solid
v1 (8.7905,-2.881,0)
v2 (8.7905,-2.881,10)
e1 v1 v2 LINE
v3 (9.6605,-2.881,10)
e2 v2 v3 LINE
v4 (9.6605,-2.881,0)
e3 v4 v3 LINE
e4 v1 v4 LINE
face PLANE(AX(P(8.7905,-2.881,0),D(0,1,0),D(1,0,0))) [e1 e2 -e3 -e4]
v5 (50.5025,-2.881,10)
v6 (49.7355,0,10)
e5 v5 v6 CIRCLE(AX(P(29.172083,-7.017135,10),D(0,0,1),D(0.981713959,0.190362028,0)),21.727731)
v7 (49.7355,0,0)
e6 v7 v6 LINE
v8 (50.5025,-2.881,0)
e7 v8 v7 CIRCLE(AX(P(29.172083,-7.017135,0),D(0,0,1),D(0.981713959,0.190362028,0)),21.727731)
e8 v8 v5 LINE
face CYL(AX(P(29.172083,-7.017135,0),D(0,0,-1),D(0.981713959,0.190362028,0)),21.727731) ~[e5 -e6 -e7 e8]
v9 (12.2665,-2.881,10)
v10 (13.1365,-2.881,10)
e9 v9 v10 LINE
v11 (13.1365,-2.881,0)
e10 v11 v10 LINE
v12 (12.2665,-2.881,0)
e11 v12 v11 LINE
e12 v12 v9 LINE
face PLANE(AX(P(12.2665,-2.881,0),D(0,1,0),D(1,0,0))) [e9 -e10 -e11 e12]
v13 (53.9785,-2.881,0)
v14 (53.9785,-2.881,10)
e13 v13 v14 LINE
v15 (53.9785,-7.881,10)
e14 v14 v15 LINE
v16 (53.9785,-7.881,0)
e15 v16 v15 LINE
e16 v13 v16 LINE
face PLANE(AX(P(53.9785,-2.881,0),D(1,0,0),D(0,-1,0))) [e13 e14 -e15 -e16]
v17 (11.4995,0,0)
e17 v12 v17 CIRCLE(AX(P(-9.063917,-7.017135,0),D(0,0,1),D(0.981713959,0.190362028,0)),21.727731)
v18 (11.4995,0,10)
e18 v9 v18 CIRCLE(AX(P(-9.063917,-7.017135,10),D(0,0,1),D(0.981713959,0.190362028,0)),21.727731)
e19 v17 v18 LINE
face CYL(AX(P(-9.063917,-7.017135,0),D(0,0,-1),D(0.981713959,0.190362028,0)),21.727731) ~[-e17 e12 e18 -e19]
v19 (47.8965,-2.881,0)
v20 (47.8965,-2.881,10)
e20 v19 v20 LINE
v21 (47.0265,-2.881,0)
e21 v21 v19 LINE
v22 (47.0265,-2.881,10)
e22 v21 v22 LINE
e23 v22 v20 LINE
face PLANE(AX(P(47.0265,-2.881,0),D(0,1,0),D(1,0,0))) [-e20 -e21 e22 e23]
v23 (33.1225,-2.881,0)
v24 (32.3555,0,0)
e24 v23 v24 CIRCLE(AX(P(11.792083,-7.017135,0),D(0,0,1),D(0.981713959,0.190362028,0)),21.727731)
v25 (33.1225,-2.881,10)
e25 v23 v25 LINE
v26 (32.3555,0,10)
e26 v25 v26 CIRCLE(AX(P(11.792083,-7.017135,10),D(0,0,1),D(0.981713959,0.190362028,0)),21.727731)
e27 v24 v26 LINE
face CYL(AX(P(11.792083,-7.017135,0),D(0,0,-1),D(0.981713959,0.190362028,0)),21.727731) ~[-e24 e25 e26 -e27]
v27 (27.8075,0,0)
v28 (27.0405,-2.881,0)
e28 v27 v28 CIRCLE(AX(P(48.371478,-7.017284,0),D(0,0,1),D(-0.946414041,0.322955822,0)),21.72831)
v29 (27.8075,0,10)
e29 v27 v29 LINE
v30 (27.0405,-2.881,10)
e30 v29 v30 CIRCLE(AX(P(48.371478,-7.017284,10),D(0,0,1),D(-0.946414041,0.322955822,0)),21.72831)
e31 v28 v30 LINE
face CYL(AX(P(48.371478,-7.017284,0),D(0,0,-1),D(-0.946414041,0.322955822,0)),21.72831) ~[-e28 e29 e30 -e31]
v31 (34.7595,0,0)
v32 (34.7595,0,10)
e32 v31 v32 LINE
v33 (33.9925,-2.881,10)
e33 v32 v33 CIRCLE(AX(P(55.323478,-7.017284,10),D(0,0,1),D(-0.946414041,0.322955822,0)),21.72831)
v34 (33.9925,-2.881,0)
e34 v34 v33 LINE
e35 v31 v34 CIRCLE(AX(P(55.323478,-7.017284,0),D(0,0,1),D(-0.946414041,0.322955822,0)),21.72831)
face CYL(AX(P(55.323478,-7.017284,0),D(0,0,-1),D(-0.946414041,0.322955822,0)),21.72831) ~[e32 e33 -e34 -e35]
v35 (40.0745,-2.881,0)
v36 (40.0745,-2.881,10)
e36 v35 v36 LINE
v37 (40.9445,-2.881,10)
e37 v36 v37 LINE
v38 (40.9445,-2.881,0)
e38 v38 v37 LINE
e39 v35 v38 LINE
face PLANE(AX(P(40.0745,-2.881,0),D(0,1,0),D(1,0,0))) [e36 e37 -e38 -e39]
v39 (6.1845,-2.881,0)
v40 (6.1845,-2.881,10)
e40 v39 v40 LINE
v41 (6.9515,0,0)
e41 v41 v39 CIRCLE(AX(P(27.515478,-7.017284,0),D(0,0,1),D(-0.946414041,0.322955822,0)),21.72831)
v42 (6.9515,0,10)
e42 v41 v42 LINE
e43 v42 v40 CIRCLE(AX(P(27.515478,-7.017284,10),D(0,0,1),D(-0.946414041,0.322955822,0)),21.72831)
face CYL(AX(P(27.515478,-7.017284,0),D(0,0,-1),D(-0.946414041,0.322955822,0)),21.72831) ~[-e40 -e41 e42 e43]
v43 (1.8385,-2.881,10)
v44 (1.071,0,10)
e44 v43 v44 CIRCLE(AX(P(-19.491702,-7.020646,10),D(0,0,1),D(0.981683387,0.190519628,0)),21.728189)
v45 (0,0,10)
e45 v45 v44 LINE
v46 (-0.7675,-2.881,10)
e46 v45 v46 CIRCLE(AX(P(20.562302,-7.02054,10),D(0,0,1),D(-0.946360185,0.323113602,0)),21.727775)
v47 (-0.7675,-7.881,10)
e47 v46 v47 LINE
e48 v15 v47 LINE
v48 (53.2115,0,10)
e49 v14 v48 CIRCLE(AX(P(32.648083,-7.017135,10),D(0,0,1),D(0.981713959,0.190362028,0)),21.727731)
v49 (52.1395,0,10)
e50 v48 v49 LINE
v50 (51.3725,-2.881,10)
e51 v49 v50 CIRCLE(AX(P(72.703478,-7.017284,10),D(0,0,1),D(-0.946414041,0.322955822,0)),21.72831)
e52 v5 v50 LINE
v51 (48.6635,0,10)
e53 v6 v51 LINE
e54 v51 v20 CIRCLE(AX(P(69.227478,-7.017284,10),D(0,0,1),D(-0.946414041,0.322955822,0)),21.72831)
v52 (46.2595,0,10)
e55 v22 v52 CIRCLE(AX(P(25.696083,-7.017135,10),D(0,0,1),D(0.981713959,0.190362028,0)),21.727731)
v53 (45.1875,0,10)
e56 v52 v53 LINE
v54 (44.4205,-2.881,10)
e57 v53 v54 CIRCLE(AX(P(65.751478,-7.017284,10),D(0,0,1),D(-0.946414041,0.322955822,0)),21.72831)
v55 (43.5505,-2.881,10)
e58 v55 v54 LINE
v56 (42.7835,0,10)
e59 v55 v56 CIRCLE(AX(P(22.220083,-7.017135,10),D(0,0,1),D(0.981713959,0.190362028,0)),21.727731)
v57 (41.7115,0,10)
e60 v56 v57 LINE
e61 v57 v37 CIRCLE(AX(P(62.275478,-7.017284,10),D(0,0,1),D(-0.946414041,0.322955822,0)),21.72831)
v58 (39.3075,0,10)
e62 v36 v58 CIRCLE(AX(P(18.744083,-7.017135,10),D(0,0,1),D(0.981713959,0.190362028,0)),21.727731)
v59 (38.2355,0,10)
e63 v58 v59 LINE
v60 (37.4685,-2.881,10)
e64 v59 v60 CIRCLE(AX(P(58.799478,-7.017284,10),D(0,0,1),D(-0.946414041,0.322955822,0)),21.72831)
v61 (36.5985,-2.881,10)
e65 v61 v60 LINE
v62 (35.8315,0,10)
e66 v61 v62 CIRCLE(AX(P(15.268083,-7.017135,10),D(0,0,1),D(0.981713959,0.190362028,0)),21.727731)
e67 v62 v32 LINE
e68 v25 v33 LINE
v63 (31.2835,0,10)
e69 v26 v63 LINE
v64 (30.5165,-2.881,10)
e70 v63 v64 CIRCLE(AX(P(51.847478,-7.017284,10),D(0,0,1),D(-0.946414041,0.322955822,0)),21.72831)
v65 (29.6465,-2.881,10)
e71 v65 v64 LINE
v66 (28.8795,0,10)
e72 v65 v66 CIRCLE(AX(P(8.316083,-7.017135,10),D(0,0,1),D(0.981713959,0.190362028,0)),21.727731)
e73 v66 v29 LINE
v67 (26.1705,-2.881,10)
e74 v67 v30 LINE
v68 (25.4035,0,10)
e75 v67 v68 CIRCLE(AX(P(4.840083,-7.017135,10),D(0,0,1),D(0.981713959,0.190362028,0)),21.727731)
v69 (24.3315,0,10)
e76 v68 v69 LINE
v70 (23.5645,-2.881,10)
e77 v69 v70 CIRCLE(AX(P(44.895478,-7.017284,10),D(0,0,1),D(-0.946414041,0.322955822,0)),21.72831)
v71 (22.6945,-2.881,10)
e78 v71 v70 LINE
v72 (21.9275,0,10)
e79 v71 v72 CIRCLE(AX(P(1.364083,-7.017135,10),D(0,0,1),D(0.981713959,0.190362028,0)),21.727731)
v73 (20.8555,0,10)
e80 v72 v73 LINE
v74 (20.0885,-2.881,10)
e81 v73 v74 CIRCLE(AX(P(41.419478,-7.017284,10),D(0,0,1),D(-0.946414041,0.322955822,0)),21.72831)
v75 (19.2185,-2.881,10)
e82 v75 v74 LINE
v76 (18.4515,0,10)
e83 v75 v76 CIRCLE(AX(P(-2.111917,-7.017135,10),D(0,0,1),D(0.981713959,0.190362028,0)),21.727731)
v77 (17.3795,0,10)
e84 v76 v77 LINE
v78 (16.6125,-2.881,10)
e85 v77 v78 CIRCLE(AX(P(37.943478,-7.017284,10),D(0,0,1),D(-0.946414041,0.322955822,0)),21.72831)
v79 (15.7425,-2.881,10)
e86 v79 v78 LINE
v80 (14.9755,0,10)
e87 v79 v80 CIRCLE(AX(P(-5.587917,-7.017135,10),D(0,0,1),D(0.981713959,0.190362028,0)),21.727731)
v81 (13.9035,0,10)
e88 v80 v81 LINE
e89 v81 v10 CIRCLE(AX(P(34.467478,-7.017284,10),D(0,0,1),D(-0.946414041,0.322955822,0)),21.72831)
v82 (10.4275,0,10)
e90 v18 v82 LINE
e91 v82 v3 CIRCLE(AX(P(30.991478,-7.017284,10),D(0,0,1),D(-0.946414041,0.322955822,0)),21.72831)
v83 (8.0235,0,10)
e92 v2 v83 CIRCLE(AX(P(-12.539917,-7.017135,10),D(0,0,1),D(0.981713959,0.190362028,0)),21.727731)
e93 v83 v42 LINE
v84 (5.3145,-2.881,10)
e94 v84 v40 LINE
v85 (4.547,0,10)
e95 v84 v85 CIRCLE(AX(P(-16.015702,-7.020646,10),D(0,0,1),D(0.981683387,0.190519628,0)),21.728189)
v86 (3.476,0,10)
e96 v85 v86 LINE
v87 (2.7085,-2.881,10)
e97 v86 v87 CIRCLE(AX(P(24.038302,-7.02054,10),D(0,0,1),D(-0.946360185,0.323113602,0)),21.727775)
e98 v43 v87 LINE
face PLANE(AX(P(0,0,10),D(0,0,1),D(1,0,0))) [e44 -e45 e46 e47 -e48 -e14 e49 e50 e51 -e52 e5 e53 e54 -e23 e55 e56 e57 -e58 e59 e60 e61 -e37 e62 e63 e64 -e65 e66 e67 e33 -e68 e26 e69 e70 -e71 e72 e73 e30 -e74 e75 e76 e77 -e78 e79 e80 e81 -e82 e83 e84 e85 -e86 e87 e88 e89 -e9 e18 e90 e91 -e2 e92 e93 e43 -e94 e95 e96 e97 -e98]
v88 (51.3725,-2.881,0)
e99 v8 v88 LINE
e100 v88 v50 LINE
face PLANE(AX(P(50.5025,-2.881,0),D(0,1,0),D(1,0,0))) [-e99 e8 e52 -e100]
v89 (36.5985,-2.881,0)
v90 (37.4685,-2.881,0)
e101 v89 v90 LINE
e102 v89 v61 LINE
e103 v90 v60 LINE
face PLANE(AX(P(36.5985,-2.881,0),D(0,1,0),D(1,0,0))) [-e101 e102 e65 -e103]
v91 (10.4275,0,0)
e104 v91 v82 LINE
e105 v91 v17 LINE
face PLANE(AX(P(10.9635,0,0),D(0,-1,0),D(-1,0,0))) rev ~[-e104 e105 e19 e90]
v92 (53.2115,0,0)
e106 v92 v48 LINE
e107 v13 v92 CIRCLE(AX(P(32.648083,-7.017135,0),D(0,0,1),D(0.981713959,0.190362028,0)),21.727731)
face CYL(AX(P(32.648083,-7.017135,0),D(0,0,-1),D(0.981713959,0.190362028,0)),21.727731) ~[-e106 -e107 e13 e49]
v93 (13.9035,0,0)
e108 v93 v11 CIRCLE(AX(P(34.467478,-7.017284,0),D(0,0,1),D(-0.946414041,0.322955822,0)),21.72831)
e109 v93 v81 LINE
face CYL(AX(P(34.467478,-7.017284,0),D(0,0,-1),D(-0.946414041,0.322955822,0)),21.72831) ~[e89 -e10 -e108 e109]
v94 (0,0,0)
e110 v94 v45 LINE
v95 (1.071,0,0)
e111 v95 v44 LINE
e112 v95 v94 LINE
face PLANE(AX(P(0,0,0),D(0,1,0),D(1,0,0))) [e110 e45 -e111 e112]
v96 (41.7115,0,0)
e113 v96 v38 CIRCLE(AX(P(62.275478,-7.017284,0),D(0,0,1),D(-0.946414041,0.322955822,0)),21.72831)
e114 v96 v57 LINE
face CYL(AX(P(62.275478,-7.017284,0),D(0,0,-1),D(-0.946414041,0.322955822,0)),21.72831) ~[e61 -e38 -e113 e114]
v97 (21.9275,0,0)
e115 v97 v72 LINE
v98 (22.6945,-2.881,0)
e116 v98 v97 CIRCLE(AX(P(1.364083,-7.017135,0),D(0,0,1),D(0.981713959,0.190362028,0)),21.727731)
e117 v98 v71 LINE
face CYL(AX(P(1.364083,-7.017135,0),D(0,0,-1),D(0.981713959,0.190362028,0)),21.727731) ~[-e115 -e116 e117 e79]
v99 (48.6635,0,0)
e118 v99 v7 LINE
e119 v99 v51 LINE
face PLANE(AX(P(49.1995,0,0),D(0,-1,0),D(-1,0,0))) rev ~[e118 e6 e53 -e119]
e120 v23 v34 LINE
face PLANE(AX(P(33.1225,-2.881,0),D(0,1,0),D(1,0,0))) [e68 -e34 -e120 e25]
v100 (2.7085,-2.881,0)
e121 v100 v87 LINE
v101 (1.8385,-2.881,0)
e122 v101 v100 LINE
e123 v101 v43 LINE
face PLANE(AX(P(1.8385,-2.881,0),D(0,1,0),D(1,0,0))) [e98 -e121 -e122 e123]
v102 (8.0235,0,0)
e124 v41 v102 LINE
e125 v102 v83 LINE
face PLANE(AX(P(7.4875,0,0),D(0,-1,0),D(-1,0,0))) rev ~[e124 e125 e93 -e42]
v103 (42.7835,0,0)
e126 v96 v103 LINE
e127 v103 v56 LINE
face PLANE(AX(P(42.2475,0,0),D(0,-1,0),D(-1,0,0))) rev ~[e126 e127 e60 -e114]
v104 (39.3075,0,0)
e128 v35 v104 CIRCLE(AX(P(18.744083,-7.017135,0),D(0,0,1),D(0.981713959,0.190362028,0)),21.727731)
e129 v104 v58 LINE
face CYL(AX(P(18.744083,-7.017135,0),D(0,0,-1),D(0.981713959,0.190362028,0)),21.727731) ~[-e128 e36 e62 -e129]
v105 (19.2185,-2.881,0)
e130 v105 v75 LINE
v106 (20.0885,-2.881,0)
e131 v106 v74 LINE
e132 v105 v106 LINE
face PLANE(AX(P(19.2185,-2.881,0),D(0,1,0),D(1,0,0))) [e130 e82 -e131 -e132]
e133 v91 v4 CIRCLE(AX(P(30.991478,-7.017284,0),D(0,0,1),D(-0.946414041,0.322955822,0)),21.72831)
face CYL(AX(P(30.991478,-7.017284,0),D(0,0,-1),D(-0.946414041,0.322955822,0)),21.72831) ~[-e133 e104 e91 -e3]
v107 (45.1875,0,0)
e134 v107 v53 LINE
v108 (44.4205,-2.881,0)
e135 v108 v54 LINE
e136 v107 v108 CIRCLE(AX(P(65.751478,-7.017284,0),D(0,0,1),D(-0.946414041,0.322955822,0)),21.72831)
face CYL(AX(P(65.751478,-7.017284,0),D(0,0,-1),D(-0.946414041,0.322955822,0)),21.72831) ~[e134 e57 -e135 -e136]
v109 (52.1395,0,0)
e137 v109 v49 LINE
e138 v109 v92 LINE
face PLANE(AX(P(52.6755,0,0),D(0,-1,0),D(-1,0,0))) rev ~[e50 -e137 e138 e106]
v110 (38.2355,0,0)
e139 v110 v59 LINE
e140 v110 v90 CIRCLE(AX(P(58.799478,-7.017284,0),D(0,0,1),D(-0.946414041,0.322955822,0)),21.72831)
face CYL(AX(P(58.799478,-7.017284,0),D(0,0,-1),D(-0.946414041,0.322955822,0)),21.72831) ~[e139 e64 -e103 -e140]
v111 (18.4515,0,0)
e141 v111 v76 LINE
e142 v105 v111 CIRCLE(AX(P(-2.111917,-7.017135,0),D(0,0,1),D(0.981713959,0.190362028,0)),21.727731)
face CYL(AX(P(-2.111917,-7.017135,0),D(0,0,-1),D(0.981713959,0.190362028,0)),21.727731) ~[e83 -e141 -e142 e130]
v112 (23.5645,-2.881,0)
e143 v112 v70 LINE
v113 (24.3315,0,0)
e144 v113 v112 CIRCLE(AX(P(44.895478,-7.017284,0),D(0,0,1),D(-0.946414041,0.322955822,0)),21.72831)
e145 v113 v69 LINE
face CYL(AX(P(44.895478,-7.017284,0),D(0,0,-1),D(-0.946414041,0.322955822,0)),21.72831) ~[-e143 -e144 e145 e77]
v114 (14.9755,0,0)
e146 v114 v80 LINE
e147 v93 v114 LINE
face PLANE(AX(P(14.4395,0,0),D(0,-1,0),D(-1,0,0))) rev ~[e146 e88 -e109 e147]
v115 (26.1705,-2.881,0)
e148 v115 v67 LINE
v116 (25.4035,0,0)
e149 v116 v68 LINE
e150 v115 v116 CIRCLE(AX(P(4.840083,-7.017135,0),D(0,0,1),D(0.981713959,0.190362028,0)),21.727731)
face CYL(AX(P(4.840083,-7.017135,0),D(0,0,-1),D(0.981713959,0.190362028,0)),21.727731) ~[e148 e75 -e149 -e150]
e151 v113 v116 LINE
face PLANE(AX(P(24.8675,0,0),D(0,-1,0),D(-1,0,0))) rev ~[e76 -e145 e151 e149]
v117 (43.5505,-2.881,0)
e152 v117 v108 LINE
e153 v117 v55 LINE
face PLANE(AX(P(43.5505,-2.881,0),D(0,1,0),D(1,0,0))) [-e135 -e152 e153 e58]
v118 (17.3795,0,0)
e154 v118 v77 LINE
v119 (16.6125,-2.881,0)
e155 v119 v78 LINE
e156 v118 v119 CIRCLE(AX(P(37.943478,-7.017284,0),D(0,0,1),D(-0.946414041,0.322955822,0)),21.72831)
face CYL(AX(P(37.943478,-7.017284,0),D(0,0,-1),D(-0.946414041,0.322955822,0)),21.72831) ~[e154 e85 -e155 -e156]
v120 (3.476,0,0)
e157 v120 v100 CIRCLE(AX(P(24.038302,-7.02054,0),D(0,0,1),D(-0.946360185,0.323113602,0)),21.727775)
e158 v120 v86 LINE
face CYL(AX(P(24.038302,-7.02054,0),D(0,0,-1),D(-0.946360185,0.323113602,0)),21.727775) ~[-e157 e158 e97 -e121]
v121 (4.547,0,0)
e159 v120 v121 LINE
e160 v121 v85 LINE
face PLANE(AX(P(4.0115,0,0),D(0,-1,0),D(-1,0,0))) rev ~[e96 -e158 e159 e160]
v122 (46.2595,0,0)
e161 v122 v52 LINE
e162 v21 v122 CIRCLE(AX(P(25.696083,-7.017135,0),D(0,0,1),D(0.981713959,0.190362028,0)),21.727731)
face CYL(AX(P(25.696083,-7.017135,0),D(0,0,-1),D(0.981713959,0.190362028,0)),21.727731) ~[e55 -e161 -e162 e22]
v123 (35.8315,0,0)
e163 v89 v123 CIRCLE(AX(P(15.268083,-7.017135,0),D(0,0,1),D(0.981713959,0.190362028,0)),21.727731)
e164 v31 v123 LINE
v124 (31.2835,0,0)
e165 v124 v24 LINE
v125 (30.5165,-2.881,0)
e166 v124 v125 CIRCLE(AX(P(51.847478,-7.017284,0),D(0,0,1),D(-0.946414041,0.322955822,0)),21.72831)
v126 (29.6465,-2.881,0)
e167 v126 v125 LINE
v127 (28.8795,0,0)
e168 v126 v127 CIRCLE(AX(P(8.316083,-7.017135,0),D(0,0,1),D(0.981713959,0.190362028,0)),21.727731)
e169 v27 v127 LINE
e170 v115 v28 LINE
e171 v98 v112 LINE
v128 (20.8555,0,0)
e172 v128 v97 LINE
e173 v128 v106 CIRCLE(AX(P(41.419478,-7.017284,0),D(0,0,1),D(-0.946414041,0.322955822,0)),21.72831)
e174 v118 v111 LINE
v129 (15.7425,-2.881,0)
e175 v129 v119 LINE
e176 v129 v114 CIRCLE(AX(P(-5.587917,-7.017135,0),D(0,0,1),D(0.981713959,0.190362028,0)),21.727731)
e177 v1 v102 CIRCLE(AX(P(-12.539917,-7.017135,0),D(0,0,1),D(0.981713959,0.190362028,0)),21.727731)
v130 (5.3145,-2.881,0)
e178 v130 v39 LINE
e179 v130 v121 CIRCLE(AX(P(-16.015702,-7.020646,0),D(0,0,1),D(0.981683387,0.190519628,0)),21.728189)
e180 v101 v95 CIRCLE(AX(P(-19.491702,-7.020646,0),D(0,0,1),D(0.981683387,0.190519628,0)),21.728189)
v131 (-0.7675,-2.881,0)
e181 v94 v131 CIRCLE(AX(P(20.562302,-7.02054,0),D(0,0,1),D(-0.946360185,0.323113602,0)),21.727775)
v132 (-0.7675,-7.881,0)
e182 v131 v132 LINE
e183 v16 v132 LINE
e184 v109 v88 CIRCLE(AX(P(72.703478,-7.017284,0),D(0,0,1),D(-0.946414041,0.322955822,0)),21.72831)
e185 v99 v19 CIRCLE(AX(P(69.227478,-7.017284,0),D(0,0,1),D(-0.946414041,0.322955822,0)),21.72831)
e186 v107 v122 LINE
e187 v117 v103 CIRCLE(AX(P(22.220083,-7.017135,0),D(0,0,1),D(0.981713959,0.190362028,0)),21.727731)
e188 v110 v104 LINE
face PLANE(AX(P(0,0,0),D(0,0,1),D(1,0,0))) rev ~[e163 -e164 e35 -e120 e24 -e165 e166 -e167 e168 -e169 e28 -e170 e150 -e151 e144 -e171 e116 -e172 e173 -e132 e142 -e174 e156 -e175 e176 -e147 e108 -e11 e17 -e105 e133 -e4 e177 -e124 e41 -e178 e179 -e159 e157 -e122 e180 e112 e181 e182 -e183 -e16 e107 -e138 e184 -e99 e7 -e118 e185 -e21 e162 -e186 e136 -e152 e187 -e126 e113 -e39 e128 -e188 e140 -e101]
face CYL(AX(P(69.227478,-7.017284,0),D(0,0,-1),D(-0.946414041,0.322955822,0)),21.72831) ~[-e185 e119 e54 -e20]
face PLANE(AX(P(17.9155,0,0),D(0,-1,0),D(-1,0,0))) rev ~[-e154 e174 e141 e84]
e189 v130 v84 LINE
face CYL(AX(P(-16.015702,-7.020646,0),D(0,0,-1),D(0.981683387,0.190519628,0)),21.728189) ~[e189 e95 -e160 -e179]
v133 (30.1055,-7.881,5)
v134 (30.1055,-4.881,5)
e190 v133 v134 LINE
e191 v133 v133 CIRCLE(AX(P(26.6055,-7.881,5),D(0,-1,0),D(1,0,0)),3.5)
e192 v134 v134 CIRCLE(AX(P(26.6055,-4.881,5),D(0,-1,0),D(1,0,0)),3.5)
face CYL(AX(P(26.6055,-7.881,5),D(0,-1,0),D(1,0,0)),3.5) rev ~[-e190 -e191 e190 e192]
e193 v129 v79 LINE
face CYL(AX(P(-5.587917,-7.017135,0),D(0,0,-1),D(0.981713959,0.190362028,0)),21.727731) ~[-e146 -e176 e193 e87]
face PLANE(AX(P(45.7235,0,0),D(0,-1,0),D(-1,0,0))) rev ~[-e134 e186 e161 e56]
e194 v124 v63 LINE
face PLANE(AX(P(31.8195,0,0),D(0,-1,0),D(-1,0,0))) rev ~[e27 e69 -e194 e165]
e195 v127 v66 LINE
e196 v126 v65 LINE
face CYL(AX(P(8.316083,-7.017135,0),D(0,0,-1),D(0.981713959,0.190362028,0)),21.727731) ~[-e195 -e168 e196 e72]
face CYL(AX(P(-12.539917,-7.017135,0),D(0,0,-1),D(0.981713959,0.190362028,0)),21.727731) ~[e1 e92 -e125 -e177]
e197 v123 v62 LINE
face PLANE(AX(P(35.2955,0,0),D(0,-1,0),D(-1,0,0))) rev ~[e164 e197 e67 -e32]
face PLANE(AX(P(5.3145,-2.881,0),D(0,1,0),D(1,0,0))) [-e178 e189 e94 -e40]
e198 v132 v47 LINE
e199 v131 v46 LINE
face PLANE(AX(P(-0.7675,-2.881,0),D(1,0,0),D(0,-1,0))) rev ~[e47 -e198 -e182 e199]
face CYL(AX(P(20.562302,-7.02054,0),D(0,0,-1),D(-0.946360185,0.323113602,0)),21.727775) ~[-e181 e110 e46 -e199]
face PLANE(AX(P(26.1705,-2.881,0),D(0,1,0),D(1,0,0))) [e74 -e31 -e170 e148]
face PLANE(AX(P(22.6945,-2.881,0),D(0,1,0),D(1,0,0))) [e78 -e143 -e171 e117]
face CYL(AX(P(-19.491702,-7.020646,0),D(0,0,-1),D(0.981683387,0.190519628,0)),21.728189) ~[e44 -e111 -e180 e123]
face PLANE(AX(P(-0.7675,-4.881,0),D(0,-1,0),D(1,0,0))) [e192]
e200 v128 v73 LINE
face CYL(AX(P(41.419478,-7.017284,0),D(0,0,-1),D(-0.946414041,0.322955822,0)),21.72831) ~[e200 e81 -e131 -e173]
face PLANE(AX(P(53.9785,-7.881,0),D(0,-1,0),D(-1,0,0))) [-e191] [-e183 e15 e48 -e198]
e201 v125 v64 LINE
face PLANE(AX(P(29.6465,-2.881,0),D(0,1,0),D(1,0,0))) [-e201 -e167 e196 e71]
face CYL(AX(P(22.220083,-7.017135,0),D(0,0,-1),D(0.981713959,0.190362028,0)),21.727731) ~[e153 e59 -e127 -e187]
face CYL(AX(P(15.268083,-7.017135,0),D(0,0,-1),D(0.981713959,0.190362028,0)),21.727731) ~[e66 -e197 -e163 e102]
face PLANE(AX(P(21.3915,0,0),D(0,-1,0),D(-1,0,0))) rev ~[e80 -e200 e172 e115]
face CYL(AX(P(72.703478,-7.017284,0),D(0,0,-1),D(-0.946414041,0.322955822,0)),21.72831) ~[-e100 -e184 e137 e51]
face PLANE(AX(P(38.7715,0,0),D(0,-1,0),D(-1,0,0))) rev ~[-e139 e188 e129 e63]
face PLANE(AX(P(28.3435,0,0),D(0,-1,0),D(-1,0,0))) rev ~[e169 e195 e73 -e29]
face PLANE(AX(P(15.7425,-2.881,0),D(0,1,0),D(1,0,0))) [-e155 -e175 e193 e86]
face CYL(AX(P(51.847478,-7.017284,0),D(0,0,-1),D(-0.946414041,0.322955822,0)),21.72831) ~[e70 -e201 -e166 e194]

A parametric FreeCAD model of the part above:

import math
import FreeCAD as App
import Part
import Sketcher
from FreeCAD import Vector

doc = App.newDocument("Part")
body = doc.addObject("PartDesign::Body", "Body")

# Sketch on XY plane
sketch1 = body.newObject("Sketcher::SketchObject", "Sketch")
sketch1.AttachmentSupport = (doc.getObject("XY_Plane"), [""])
sketch1.MapMode = "FlatFace"
sketch1.addGeometry([
    Part.ArcOfCircle(Part.Circle(Vector(20.5625, -7.0206, 0), Vector(0, 0, 1), 21.727983), math.radians(161.148692), math.radians(169.016908)),  # 0
    Part.LineSegment(Vector(-0.7675, -2.881, 0), Vector(-0.7675, -7.881, 0)),  # 1
    Part.LineSegment(Vector(-0.7675, -7.881, 0), Vector(53.9785, -7.881, 0)),  # 2
    Part.LineSegment(Vector(53.9785, -7.881, 0), Vector(53.9785, -2.881, 0)),  # 3
    Part.ArcOfCircle(Part.Circle(Vector(32.6478, -7.0172, 0), Vector(0, 0, 1), 21.728021), math.radians(10.973939), math.radians(18.841801)),  # 4
    Part.LineSegment(Vector(53.2115, 0, 0), Vector(52.1395, 0, 0)),  # 5
    Part.ArcOfCircle(Part.Circle(Vector(72.7032, -7.0172, 0), Vector(0, 0, 1), 21.72802), math.radians(161.158199), math.radians(169.026061)),  # 6
    Part.LineSegment(Vector(51.3725, -2.881, 0), Vector(50.5025, -2.881, 0)),  # 7
    Part.ArcOfCircle(Part.Circle(Vector(29.1718, -7.0172, 0), Vector(0, 0, 1), 21.728021), math.radians(10.973939), math.radians(18.841801)),  # 8
    Part.LineSegment(Vector(49.7355, 0, 0), Vector(48.6635, 0, 0)),  # 9
    Part.ArcOfCircle(Part.Circle(Vector(69.2272, -7.0172, 0), Vector(0, 0, 1), 21.72802), math.radians(161.158199), math.radians(169.026061)),  # 10
    Part.LineSegment(Vector(47.8965, -2.881, 0), Vector(47.0265, -2.881, 0)),  # 11
    Part.ArcOfCircle(Part.Circle(Vector(25.6958, -7.0172, 0), Vector(0, 0, 1), 21.728021), math.radians(10.973939), math.radians(18.841801)),  # 12
    Part.LineSegment(Vector(46.2595, 0, 0), Vector(45.1875, 0, 0)),  # 13
    Part.ArcOfCircle(Part.Circle(Vector(65.7512, -7.0172, 0), Vector(0, 0, 1), 21.72802), math.radians(161.158199), math.radians(169.026061)),  # 14
    Part.LineSegment(Vector(44.4205, -2.881, 0), Vector(43.5505, -2.881, 0)),  # 15
    Part.ArcOfCircle(Part.Circle(Vector(22.2198, -7.0172, 0), Vector(0, 0, 1), 21.728021), math.radians(10.973939), math.radians(18.841801)),  # 16
    Part.LineSegment(Vector(42.7835, 0, 0), Vector(41.7115, 0, 0)),  # 17
    Part.ArcOfCircle(Part.Circle(Vector(62.2752, -7.0172, 0), Vector(0, 0, 1), 21.72802), math.radians(161.158199), math.radians(169.026061)),  # 18
    Part.LineSegment(Vector(40.9445, -2.881, 0), Vector(40.0745, -2.881, 0)),  # 19
    Part.ArcOfCircle(Part.Circle(Vector(18.7438, -7.0172, 0), Vector(0, 0, 1), 21.728021), math.radians(10.973939), math.radians(18.841801)),  # 20
    Part.LineSegment(Vector(39.3075, 0, 0), Vector(38.2355, 0, 0)),  # 21
    Part.ArcOfCircle(Part.Circle(Vector(58.7992, -7.0172, 0), Vector(0, 0, 1), 21.72802), math.radians(161.158199), math.radians(169.026061)),  # 22
    Part.LineSegment(Vector(37.4685, -2.881, 0), Vector(36.5985, -2.881, 0)),  # 23
    Part.ArcOfCircle(Part.Circle(Vector(15.2678, -7.0172, 0), Vector(0, 0, 1), 21.728021), math.radians(10.973939), math.radians(18.841801)),  # 24
    Part.LineSegment(Vector(35.8315, 0, 0), Vector(34.7595, 0, 0)),  # 25
    Part.ArcOfCircle(Part.Circle(Vector(55.3232, -7.0172, 0), Vector(0, 0, 1), 21.72802), math.radians(161.158199), math.radians(169.026061)),  # 26
    Part.LineSegment(Vector(33.9925, -2.881, 0), Vector(33.1225, -2.881, 0)),  # 27
    Part.ArcOfCircle(Part.Circle(Vector(11.7918, -7.0172, 0), Vector(0, 0, 1), 21.728021), math.radians(10.973939), math.radians(18.841801)),  # 28
    Part.LineSegment(Vector(32.3555, 0, 0), Vector(31.2835, 0, 0)),  # 29
    Part.ArcOfCircle(Part.Circle(Vector(51.8472, -7.0172, 0), Vector(0, 0, 1), 21.72802), math.radians(161.158199), math.radians(169.026061)),  # 30
    Part.LineSegment(Vector(30.5165, -2.881, 0), Vector(29.6465, -2.881, 0)),  # 31
    Part.ArcOfCircle(Part.Circle(Vector(8.3158, -7.0172, 0), Vector(0, 0, 1), 21.728021), math.radians(10.973939), math.radians(18.841801)),  # 32
    Part.LineSegment(Vector(28.8795, 0, 0), Vector(27.8075, 0, 0)),  # 33
    Part.ArcOfCircle(Part.Circle(Vector(48.3712, -7.0172, 0), Vector(0, 0, 1), 21.72802), math.radians(161.158199), math.radians(169.026061)),  # 34
    Part.LineSegment(Vector(27.0405, -2.881, 0), Vector(26.1705, -2.881, 0)),  # 35
    Part.ArcOfCircle(Part.Circle(Vector(4.8398, -7.0172, 0), Vector(0, 0, 1), 21.728021), math.radians(10.973939), math.radians(18.841801)),  # 36
    Part.LineSegment(Vector(25.4035, 0, 0), Vector(24.3315, 0, 0)),  # 37
    Part.ArcOfCircle(Part.Circle(Vector(44.8952, -7.0172, 0), Vector(0, 0, 1), 21.72802), math.radians(161.158199), math.radians(169.026061)),  # 38
    Part.LineSegment(Vector(23.5645, -2.881, 0), Vector(22.6945, -2.881, 0)),  # 39
    Part.ArcOfCircle(Part.Circle(Vector(1.3638, -7.0172, 0), Vector(0, 0, 1), 21.728021), math.radians(10.973939), math.radians(18.841801)),  # 40
    Part.LineSegment(Vector(21.9275, 0, 0), Vector(20.8555, 0, 0)),  # 41
    Part.ArcOfCircle(Part.Circle(Vector(41.4192, -7.0172, 0), Vector(0, 0, 1), 21.72802), math.radians(161.158199), math.radians(169.026061)),  # 42
    Part.LineSegment(Vector(20.0885, -2.881, 0), Vector(19.2185, -2.881, 0)),  # 43
    Part.ArcOfCircle(Part.Circle(Vector(-2.1122, -7.0172, 0), Vector(0, 0, 1), 21.728021), math.radians(10.973939), math.radians(18.841801)),  # 44
    Part.LineSegment(Vector(18.4515, 0, 0), Vector(17.3795, 0, 0)),  # 45
    Part.ArcOfCircle(Part.Circle(Vector(37.9432, -7.0172, 0), Vector(0, 0, 1), 21.72802), math.radians(161.158199), math.radians(169.026061)),  # 46
    Part.LineSegment(Vector(16.6125, -2.881, 0), Vector(15.7425, -2.881, 0)),  # 47
    Part.ArcOfCircle(Part.Circle(Vector(-5.5882, -7.0172, 0), Vector(0, 0, 1), 21.728021), math.radians(10.973939), math.radians(18.841801)),  # 48
    Part.LineSegment(Vector(14.9755, 0, 0), Vector(13.9035, 0, 0)),  # 49
    Part.ArcOfCircle(Part.Circle(Vector(34.4672, -7.0172, 0), Vector(0, 0, 1), 21.72802), math.radians(161.158199), math.radians(169.026061)),  # 50
    Part.LineSegment(Vector(13.1365, -2.881, 0), Vector(12.2665, -2.881, 0)),  # 51
    Part.ArcOfCircle(Part.Circle(Vector(-9.0642, -7.0172, 0), Vector(0, 0, 1), 21.728021), math.radians(10.973939), math.radians(18.841801)),  # 52
    Part.LineSegment(Vector(11.4995, 0, 0), Vector(10.4275, 0, 0)),  # 53
    Part.ArcOfCircle(Part.Circle(Vector(30.9912, -7.0172, 0), Vector(0, 0, 1), 21.72802), math.radians(161.158199), math.radians(169.026061)),  # 54
    Part.LineSegment(Vector(9.6605, -2.881, 0), Vector(8.7905, -2.881, 0)),  # 55
    Part.ArcOfCircle(Part.Circle(Vector(-12.5402, -7.0172, 0), Vector(0, 0, 1), 21.728021), math.radians(10.973939), math.radians(18.841801)),  # 56
    Part.LineSegment(Vector(8.0235, 0, 0), Vector(6.9515, 0, 0)),  # 57
    Part.ArcOfCircle(Part.Circle(Vector(27.5152, -7.0172, 0), Vector(0, 0, 1), 21.72802), math.radians(161.158199), math.radians(169.026061)),  # 58
    Part.LineSegment(Vector(6.1845, -2.881, 0), Vector(5.3145, -2.881, 0)),  # 59
    Part.ArcOfCircle(Part.Circle(Vector(-16.0155, -7.0206, 0), Vector(0, 0, 1), 21.727982), math.radians(10.983092), math.radians(18.851308)),  # 60
    Part.LineSegment(Vector(4.547, 0, 0), Vector(3.476, 0, 0)),  # 61
    Part.ArcOfCircle(Part.Circle(Vector(24.0385, -7.0206, 0), Vector(0, 0, 1), 21.727983), math.radians(161.148692), math.radians(169.016908)),  # 62
    Part.LineSegment(Vector(2.7085, -2.881, 0), Vector(1.8385, -2.881, 0)),  # 63
    Part.ArcOfCircle(Part.Circle(Vector(-19.4915, -7.0206, 0), Vector(0, 0, 1), 21.727982), math.radians(10.983092), math.radians(18.851308)),  # 64
    Part.LineSegment(Vector(1.071, 0, 0), Vector(0, 0, 0)),  # 65
], False)
sketch1.addConstraint([
    Sketcher.Constraint("Coincident", 0, 2, 1, 1),
    Sketcher.Constraint("Coincident", 1, 2, 2, 1),
    Sketcher.Constraint("Coincident", 2, 2, 3, 1),
    Sketcher.Constraint("Coincident", 3, 2, 4, 1),
    Sketcher.Constraint("Coincident", 4, 2, 5, 1),
    Sketcher.Constraint("Coincident", 5, 2, 6, 1),
    Sketcher.Constraint("Coincident", 6, 2, 7, 1),
    Sketcher.Constraint("Coincident", 7, 2, 8, 1),
    Sketcher.Constraint("Coincident", 8, 2, 9, 1),
    Sketcher.Constraint("Coincident", 9, 2, 10, 1),
    Sketcher.Constraint("Coincident", 10, 2, 11, 1),
    Sketcher.Constraint("Coincident", 11, 2, 12, 1),
    Sketcher.Constraint("Coincident", 12, 2, 13, 1),
    Sketcher.Constraint("Coincident", 13, 2, 14, 1),
    Sketcher.Constraint("Coincident", 14, 2, 15, 1),
    Sketcher.Constraint("Coincident", 15, 2, 16, 1),
    Sketcher.Constraint("Coincident", 16, 2, 17, 1),
    Sketcher.Constraint("Coincident", 17, 2, 18, 1),
    Sketcher.Constraint("Coincident", 18, 2, 19, 1),
    Sketcher.Constraint("Coincident", 19, 2, 20, 1),
    Sketcher.Constraint("Coincident", 20, 2, 21, 1),
    Sketcher.Constraint("Coincident", 21, 2, 22, 1),
    Sketcher.Constraint("Coincident", 22, 2, 23, 1),
    Sketcher.Constraint("Coincident", 23, 2, 24, 1),
    Sketcher.Constraint("Coincident", 24, 2, 25, 1),
    Sketcher.Constraint("Coincident", 25, 2, 26, 1),
    Sketcher.Constraint("Coincident", 26, 2, 27, 1),
    Sketcher.Constraint("Coincident", 27, 2, 28, 1),
    Sketcher.Constraint("Coincident", 28, 2, 29, 1),
    Sketcher.Constraint("Coincident", 29, 2, 30, 1),
    Sketcher.Constraint("Coincident", 30, 2, 31, 1),
    Sketcher.Constraint("Coincident", 31, 2, 32, 1),
    Sketcher.Constraint("Coincident", 32, 2, 33, 1),
    Sketcher.Constraint("Coincident", 33, 2, 34, 1),
    Sketcher.Constraint("Coincident", 34, 2, 35, 1),
    Sketcher.Constraint("Coincident", 35, 2, 36, 1),
    Sketcher.Constraint("Coincident", 36, 2, 37, 1),
    Sketcher.Constraint("Coincident", 37, 2, 38, 1),
    Sketcher.Constraint("Coincident", 38, 2, 39, 1),
    Sketcher.Constraint("Coincident", 39, 2, 40, 1),
    Sketcher.Constraint("Coincident", 40, 2, 41, 1),
    Sketcher.Constraint("Coincident", 41, 2, 42, 1),
    Sketcher.Constraint("Coincident", 42, 2, 43, 1),
    Sketcher.Constraint("Coincident", 43, 2, 44, 1),
    Sketcher.Constraint("Coincident", 44, 2, 45, 1),
    Sketcher.Constraint("Coincident", 45, 2, 46, 1),
    Sketcher.Constraint("Coincident", 46, 2, 47, 1),
    Sketcher.Constraint("Coincident", 47, 2, 48, 1),
    Sketcher.Constraint("Coincident", 48, 2, 49, 1),
    Sketcher.Constraint("Coincident", 49, 2, 50, 1),
    Sketcher.Constraint("Coincident", 50, 2, 51, 1),
    Sketcher.Constraint("Coincident", 51, 2, 52, 1),
    Sketcher.Constraint("Coincident", 52, 2, 53, 1),
    Sketcher.Constraint("Coincident", 53, 2, 54, 1),
    Sketcher.Constraint("Coincident", 54, 2, 55, 1),
    Sketcher.Constraint("Coincident", 55, 2, 56, 1),
    Sketcher.Constraint("Coincident", 56, 2, 57, 1),
    Sketcher.Constraint("Coincident", 57, 2, 58, 1),
    Sketcher.Constraint("Coincident", 58, 2, 59, 1),
    Sketcher.Constraint("Coincident", 59, 2, 60, 1),
    Sketcher.Constraint("Coincident", 60, 2, 61, 1),
    Sketcher.Constraint("Coincident", 61, 2, 62, 1),
    Sketcher.Constraint("Coincident", 62, 2, 63, 1),
    Sketcher.Constraint("Coincident", 63, 2, 64, 1),
    Sketcher.Constraint("Coincident", 64, 2, 65, 1),
    Sketcher.Constraint("Coincident", 65, 2, 0, 1),
    Sketcher.Constraint("Vertical", 1),
    Sketcher.Constraint("Horizontal", 2),
    Sketcher.Constraint("Vertical", 3),
    Sketcher.Constraint("Horizontal", 5),
    Sketcher.Constraint("Horizontal", 7),
    Sketcher.Constraint("Horizontal", 9),
    Sketcher.Constraint("Horizontal", 11),
    Sketcher.Constraint("Horizontal", 13),
    Sketcher.Constraint("Horizontal", 15),
    Sketcher.Constraint("Horizontal", 17),
    Sketcher.Constraint("Horizontal", 19),
    Sketcher.Constraint("Horizontal", 21),
    Sketcher.Constraint("Horizontal", 23),
    Sketcher.Constraint("Horizontal", 25),
    Sketcher.Constraint("Horizontal", 27),
    Sketcher.Constraint("Horizontal", 29),
    Sketcher.Constraint("Horizontal", 31),
    Sketcher.Constraint("Horizontal", 33),
    Sketcher.Constraint("Horizontal", 35),
    Sketcher.Constraint("Horizontal", 37),
    Sketcher.Constraint("Horizontal", 39),
    Sketcher.Constraint("Horizontal", 41),
    Sketcher.Constraint("Horizontal", 43),
    Sketcher.Constraint("Horizontal", 45),
    Sketcher.Constraint("Horizontal", 47),
    Sketcher.Constraint("Horizontal", 49),
    Sketcher.Constraint("Horizontal", 51),
    Sketcher.Constraint("Horizontal", 53),
    Sketcher.Constraint("Horizontal", 55),
    Sketcher.Constraint("Horizontal", 57),
    Sketcher.Constraint("Horizontal", 59),
    Sketcher.Constraint("Horizontal", 61),
    Sketcher.Constraint("Horizontal", 63),
    Sketcher.Constraint("Horizontal", 65),
    Sketcher.Constraint("Coincident", 65, 2, -1, 1),
    Sketcher.Constraint("Equal", 0, 4),
    Sketcher.Constraint("Equal", 4, 6),
    Sketcher.Constraint("Equal", 6, 8),
    Sketcher.Constraint("Equal", 8, 10),
    Sketcher.Constraint("Equal", 10, 12),
    Sketcher.Constraint("Equal", 12, 14),
    Sketcher.Constraint("Equal", 14, 16),
    Sketcher.Constraint("Equal", 16, 18),
    Sketcher.Constraint("Equal", 18, 20),
    Sketcher.Constraint("Equal", 20, 22),
    Sketcher.Constraint("Equal", 22, 24),
    Sketcher.Constraint("Equal", 24, 26),
    Sketcher.Constraint("Equal", 26, 28),
    Sketcher.Constraint("Equal", 28, 30),
    Sketcher.Constraint("Equal", 30, 32),
    Sketcher.Constraint("Equal", 32, 34),
    Sketcher.Constraint("Equal", 34, 36),
    Sketcher.Constraint("Equal", 36, 38),
    Sketcher.Constraint("Equal", 38, 40),
    Sketcher.Constraint("Equal", 40, 42),
    Sketcher.Constraint("Equal", 42, 44),
    Sketcher.Constraint("Equal", 44, 46),
    Sketcher.Constraint("Equal", 46, 48),
    Sketcher.Constraint("Equal", 48, 50),
    Sketcher.Constraint("Equal", 50, 52),
    Sketcher.Constraint("Equal", 52, 54),
    Sketcher.Constraint("Equal", 54, 56),
    Sketcher.Constraint("Equal", 56, 58),
    Sketcher.Constraint("Equal", 58, 60),
    Sketcher.Constraint("Equal", 60, 62),
    Sketcher.Constraint("Equal", 62, 64),
    Sketcher.Constraint("PointOnObject", 4, 2, -1),
    Sketcher.Constraint("PointOnObject", 8, 2, -1),
    Sketcher.Constraint("PointOnObject", 12, 2, -1),
    Sketcher.Constraint("PointOnObject", 16, 2, -1),
    Sketcher.Constraint("PointOnObject", 20, 2, -1),
    Sketcher.Constraint("PointOnObject", 24, 2, -1),
    Sketcher.Constraint("PointOnObject", 28, 2, -1),
    Sketcher.Constraint("PointOnObject", 32, 2, -1),
    Sketcher.Constraint("PointOnObject", 36, 2, -1),
    Sketcher.Constraint("PointOnObject", 40, 2, -1),
    Sketcher.Constraint("PointOnObject", 44, 2, -1),
    Sketcher.Constraint("PointOnObject", 48, 2, -1),
    Sketcher.Constraint("PointOnObject", 52, 2, -1),
    Sketcher.Constraint("PointOnObject", 56, 2, -1),
    Sketcher.Constraint("PointOnObject", 60, 2, -1),
    Sketcher.Constraint("Horizontal", 4, 3, 6, 3),
    Sketcher.Constraint("Horizontal", 6, 3, 8, 3),
    Sketcher.Constraint("Horizontal", 8, 3, 10, 3),
    Sketcher.Constraint("Horizontal", 10, 3, 12, 3),
    Sketcher.Constraint("Horizontal", 12, 3, 14, 3),
    Sketcher.Constraint("Horizontal", 14, 3, 16, 3),
    Sketcher.Constraint("Horizontal", 16, 3, 18, 3),
    Sketcher.Constraint("Horizontal", 18, 3, 20, 3),
    Sketcher.Constraint("Horizontal", 20, 3, 22, 3),
    Sketcher.Constraint("Horizontal", 22, 3, 24, 3),
    Sketcher.Constraint("Horizontal", 24, 3, 26, 3),
    Sketcher.Constraint("Horizontal", 26, 3, 28, 3),
    Sketcher.Constraint("Horizontal", 28, 3, 30, 3),
    Sketcher.Constraint("Horizontal", 30, 3, 32, 3),
    Sketcher.Constraint("Horizontal", 32, 3, 34, 3),
    Sketcher.Constraint("Horizontal", 34, 3, 36, 3),
    Sketcher.Constraint("Horizontal", 36, 3, 38, 3),
    Sketcher.Constraint("Horizontal", 38, 3, 40, 3),
    Sketcher.Constraint("Horizontal", 40, 3, 42, 3),
    Sketcher.Constraint("Horizontal", 42, 3, 44, 3),
    Sketcher.Constraint("Horizontal", 44, 3, 46, 3),
    Sketcher.Constraint("Horizontal", 46, 3, 48, 3),
    Sketcher.Constraint("Horizontal", 48, 3, 50, 3),
    Sketcher.Constraint("Horizontal", 50, 3, 52, 3),
    Sketcher.Constraint("Horizontal", 52, 3, 54, 3),
    Sketcher.Constraint("Horizontal", 54, 3, 56, 3),
    Sketcher.Constraint("Horizontal", 56, 3, 58, 3),
    Sketcher.Constraint("Horizontal", 0, 3, 60, 3),
    Sketcher.Constraint("Horizontal", 60, 3, 62, 3),
    Sketcher.Constraint("Horizontal", 62, 3, 64, 3),
    Sketcher.Constraint("Horizontal", 0, 2, 3, 2),
    Sketcher.Constraint("Horizontal", 3, 2, 6, 2),
    Sketcher.Constraint("Horizontal", 7, 2, 10, 2),
    Sketcher.Constraint("Horizontal", 11, 2, 14, 2),
    Sketcher.Constraint("Horizontal", 15, 2, 18, 2),
    Sketcher.Constraint("Horizontal", 19, 2, 22, 2),
    Sketcher.Constraint("Horizontal", 23, 2, 26, 2),
    Sketcher.Constraint("Horizontal", 27, 2, 30, 2),
    Sketcher.Constraint("Horizontal", 31, 2, 34, 2),
    Sketcher.Constraint("Horizontal", 35, 2, 38, 2),
    Sketcher.Constraint("Horizontal", 39, 2, 42, 2),
    Sketcher.Constraint("Horizontal", 43, 2, 46, 2),
    Sketcher.Constraint("Horizontal", 47, 2, 50, 2),
    Sketcher.Constraint("Horizontal", 51, 2, 54, 2),
    Sketcher.Constraint("Horizontal", 55, 2, 58, 2),
    Sketcher.Constraint("Horizontal", 59, 2, 62, 2),
    Sketcher.Constraint("Equal", 5, 9),
    Sketcher.Constraint("Equal", 7, 11),
    Sketcher.Constraint("Equal", 9, 13),
    Sketcher.Constraint("Equal", 11, 15),
    Sketcher.Constraint("Equal", 13, 17),
    Sketcher.Constraint("Equal", 15, 19),
    Sketcher.Constraint("Equal", 17, 21),
    Sketcher.Constraint("Equal", 19, 23),
    Sketcher.Constraint("Equal", 21, 25),
    Sketcher.Constraint("Equal", 23, 27),
    Sketcher.Constraint("Equal", 25, 29),
    Sketcher.Constraint("Equal", 27, 31),
    Sketcher.Constraint("Equal", 29, 33),
    Sketcher.Constraint("Equal", 31, 35),
    Sketcher.Constraint("Equal", 33, 37),
    Sketcher.Constraint("Equal", 35, 39),
    Sketcher.Constraint("Equal", 37, 41),
    Sketcher.Constraint("Equal", 39, 43),
    Sketcher.Constraint("Equal", 41, 45),
    Sketcher.Constraint("Equal", 43, 47),
    Sketcher.Constraint("Equal", 45, 49),
    Sketcher.Constraint("Equal", 47, 51),
    Sketcher.Constraint("Equal", 49, 53),
    Sketcher.Constraint("Equal", 51, 55),
    Sketcher.Constraint("Equal", 53, 57),
    Sketcher.Constraint("Equal", 55, 59),
    Sketcher.Constraint("Equal", 59, 63),
    Sketcher.Constraint("Equal", 61, 65),
    Sketcher.Constraint("DistanceY", 1, 2, 1, 1, 5.0),
    Sketcher.Constraint("Radius", 0, 21.728),
    Sketcher.Constraint("DistanceX", 7, 2, 7, 1, 0.87),
    Sketcher.Constraint("DistanceX", 61, 2, 61, 1, 1.071),
    Sketcher.Constraint("DistanceY", 0, 2, -1, 1, 2.881),
    Sketcher.Constraint("DistanceX", 2, 1, 2, 2, 54.746),
    Sketcher.Constraint("DistanceX", 5, 2, 5, 1, 1.072),
    Sketcher.Constraint("DistanceX", -1, 1, 60, 2, 4.547),
])
pad1 = body.newObject("PartDesign::Pad", "Pad")
pad1.Profile = sketch1
pad1.Length = 10

# Sketch on XZ plane
sketch2 = body.newObject("Sketcher::SketchObject", "Sketch001")
sketch2.AttachmentSupport = (doc.getObject("XZ_Plane"), [""])
sketch2.MapMode = "FlatFace"
sketch2.AttachmentOffset = App.Placement(Vector(0, 0, 7.881), App.Rotation())
sketch2.addGeometry(Part.Circle(Vector(26.6055, 5, 0), Vector(0, 0, 1), 3.5), False)
sketch2.addConstraint([
    Sketcher.Constraint("Diameter", 0, 7.0),
    Sketcher.Constraint("DistanceY", -1, 1, 0, 3, 5.0),
    Sketcher.Constraint("DistanceX", -1, 1, 0, 3, 26.6055),
])
pocket1 = body.newObject("PartDesign::Pocket", "Pocket")
pocket1.Profile = sketch2
pocket1.Length = 3

doc.recompute()
